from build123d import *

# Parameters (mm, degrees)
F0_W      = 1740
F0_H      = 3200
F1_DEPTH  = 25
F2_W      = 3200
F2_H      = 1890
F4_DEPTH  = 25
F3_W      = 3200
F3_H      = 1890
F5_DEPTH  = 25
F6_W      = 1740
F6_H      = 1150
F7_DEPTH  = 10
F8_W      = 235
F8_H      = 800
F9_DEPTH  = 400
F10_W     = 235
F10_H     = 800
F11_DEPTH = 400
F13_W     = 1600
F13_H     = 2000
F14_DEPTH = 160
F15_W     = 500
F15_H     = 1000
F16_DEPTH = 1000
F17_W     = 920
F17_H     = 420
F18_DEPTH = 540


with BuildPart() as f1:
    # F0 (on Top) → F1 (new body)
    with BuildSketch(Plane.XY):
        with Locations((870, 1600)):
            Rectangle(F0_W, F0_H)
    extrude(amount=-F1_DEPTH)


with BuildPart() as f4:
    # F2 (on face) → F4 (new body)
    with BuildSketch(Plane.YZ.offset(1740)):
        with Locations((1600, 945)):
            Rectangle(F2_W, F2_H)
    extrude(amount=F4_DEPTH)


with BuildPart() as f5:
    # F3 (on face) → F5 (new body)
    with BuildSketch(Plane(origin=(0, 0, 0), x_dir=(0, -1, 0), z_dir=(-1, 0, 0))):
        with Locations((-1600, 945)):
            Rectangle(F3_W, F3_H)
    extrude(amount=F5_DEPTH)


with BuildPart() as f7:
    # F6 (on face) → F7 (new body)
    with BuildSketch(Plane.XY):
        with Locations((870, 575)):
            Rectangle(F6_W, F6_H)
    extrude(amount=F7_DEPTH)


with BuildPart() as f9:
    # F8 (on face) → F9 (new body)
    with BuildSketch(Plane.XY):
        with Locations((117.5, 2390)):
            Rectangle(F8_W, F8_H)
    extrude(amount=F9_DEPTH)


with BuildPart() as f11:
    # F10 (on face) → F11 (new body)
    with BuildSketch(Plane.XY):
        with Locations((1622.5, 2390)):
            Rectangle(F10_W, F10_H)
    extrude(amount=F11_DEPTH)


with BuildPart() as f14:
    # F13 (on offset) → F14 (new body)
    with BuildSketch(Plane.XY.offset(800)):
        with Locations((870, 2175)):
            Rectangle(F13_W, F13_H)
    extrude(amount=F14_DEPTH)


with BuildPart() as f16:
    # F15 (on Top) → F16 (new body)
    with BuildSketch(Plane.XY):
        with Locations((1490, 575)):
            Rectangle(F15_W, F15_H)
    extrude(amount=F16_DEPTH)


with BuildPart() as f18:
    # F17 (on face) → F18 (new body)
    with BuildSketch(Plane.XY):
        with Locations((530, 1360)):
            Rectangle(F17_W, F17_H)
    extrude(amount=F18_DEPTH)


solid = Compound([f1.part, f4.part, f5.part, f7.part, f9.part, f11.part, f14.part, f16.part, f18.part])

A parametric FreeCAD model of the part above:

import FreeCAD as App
import Part
import Sketcher
Q = App.Units.Quantity

doc = App.newDocument("Part")
body = doc.addObject("PartDesign::Body", "Body")

# Sketch on XY plane
sketch1 = doc.addObject("Sketcher::SketchObject", "Sketch")
body.addObject(sketch1)
sketch1.AttachmentSupport = (doc.XY_Plane, [""])
sketch1.MapMode = "FlatFace"
sketch1.addGeometry(Part.LineSegment(App.Vector(0, 3200, 0), App.Vector(0, 0, 0)), False)
sketch1.addGeometry(Part.LineSegment(App.Vector(0, 0, 0), App.Vector(1740, 0, 0)), False)
sketch1.addGeometry(Part.LineSegment(App.Vector(1740, 0, 0), App.Vector(1740, 3200, 0)), False)
sketch1.addGeometry(Part.LineSegment(App.Vector(1740, 3200, 0), App.Vector(0, 3200, 0)), False)
sketch1.addConstraint(Sketcher.Constraint("Coincident", 0, 2, 1, 1))
sketch1.addConstraint(Sketcher.Constraint("Coincident", 1, 2, 2, 1))
sketch1.addConstraint(Sketcher.Constraint("Coincident", 2, 2, 3, 1))
sketch1.addConstraint(Sketcher.Constraint("Coincident", 3, 2, 0, 1))
sketch1.addConstraint(Sketcher.Constraint("Vertical", 0))
sketch1.addConstraint(Sketcher.Constraint("Horizontal", 1))
sketch1.addConstraint(Sketcher.Constraint("Vertical", 2))
sketch1.addConstraint(Sketcher.Constraint("Horizontal", 3))
sketch1.addConstraint(Sketcher.Constraint("Coincident", 0, 2, -1, 1))
sketch1.addConstraint(Sketcher.Constraint("DistanceX", 1, 1, 1, 2, Q("1740 mm")))
sketch1.addConstraint(Sketcher.Constraint("DistanceY", 0, 2, 0, 1, Q("3200 mm")))
pad1 = doc.addObject("PartDesign::Pad", "Pad")
body.addObject(pad1)
pad1.Profile = sketch1
pad1.Length = 25
pad1.Reversed = True
body2 = doc.addObject("PartDesign::Body", "Body001")

# Sketch on YZ plane
sketch2 = doc.addObject("Sketcher::SketchObject", "Sketch001")
body2.addObject(sketch2)
sketch2.AttachmentSupport = (doc.getObject("YZ_Plane001"), [""])
sketch2.MapMode = "FlatFace"
sketch2.AttachmentOffset = App.Placement(App.Vector(0, 0, 1740), App.Rotation())
sketch2.addGeometry(Part.LineSegment(App.Vector(0, 1890, 0), App.Vector(0, 0, 0)), False)
sketch2.addGeometry(Part.LineSegment(App.Vector(0, 0, 0), App.Vector(3200, 0, 0)), False)
sketch2.addGeometry(Part.LineSegment(App.Vector(3200, 0, 0), App.Vector(3200, 1890, 0)), False)
sketch2.addGeometry(Part.LineSegment(App.Vector(3200, 1890, 0), App.Vector(0, 1890, 0)), False)
sketch2.addConstraint(Sketcher.Constraint("Coincident", 0, 2, 1, 1))
sketch2.addConstraint(Sketcher.Constraint("Coincident", 1, 2, 2, 1))
sketch2.addConstraint(Sketcher.Constraint("Coincident", 2, 2, 3, 1))
sketch2.addConstraint(Sketcher.Constraint("Coincident", 3, 2, 0, 1))
sketch2.addConstraint(Sketcher.Constraint("Vertical", 0))
sketch2.addConstraint(Sketcher.Constraint("Horizontal", 1))
sketch2.addConstraint(Sketcher.Constraint("Vertical", 2))
sketch2.addConstraint(Sketcher.Constraint("Horizontal", 3))
sketch2.addConstraint(Sketcher.Constraint("Coincident", 0, 2, -1, 1))
sketch2.addConstraint(Sketcher.Constraint("DistanceX", 1, 1, 1, 2, Q("3200 mm")))
sketch2.addConstraint(Sketcher.Constraint("DistanceY", 0, 2, 0, 1, Q("1890 mm")))
pad2 = doc.addObject("PartDesign::Pad", "Pad001")
body2.addObject(pad2)
pad2.Profile = sketch2
pad2.Length = 25
body3 = doc.addObject("PartDesign::Body", "Body002")

# Sketch on YZ plane
sketch3 = doc.addObject("Sketcher::SketchObject", "Sketch002")
body3.addObject(sketch3)
sketch3.AttachmentSupport = (doc.getObject("YZ_Plane002"), [""])
sketch3.MapMode = "FlatFace"
sketch3.addGeometry(Part.LineSegment(App.Vector(3200, 1890, 0), App.Vector(3200, 0, 0)), False)
sketch3.addGeometry(Part.LineSegment(App.Vector(3200, 0, 0), App.Vector(0, 0, 0)), False)
sketch3.addGeometry(Part.LineSegment(App.Vector(0, 0, 0), App.Vector(0, 1890, 0)), False)
sketch3.addGeometry(Part.LineSegment(App.Vector(0, 1890, 0), App.Vector(3200, 1890, 0)), False)
sketch3.addConstraint(Sketcher.Constraint("Coincident", 0, 2, 1, 1))
sketch3.addConstraint(Sketcher.Constraint("Coincident", 1, 2, 2, 1))
sketch3.addConstraint(Sketcher.Constraint("Coincident", 2, 2, 3, 1))
sketch3.addConstraint(Sketcher.Constraint("Coincident", 3, 2, 0, 1))
sketch3.addConstraint(Sketcher.Constraint("Vertical", 0))
sketch3.addConstraint(Sketcher.Constraint("Horizontal", 1))
sketch3.addConstraint(Sketcher.Constraint("Vertical", 2))
sketch3.addConstraint(Sketcher.Constraint("Horizontal", 3))
sketch3.addConstraint(Sketcher.Constraint("Coincident", 1, 2, -1, 1))
sketch3.addConstraint(Sketcher.Constraint("DistanceX", 1, 2, 1, 1, Q("3200 mm")))
sketch3.addConstraint(Sketcher.Constraint("DistanceY", 0, 2, 0, 1, Q("1890 mm")))
pad3 = doc.addObject("PartDesign::Pad", "Pad002")
body3.addObject(pad3)
pad3.Profile = sketch3
pad3.Length = 25
pad3.Reversed = True
body4 = doc.addObject("PartDesign::Body", "Body003")

# Sketch on XY plane
sketch4 = doc.addObject("Sketcher::SketchObject", "Sketch003")
body4.addObject(sketch4)
sketch4.AttachmentSupport = (doc.getObject("XY_Plane003"), [""])
sketch4.MapMode = "FlatFace"
sketch4.addGeometry(Part.LineSegment(App.Vector(0, 1150, 0), App.Vector(0, 0, 0)), False)
sketch4.addGeometry(Part.LineSegment(App.Vector(0, 0, 0), App.Vector(1740, 0, 0)), False)
sketch4.addGeometry(Part.LineSegment(App.Vector(1740, 0, 0), App.Vector(1740, 1150, 0)), False)
sketch4.addGeometry(Part.LineSegment(App.Vector(1740, 1150, 0), App.Vector(0, 1150, 0)), False)
sketch4.addConstraint(Sketcher.Constraint("Coincident", 0, 2, 1, 1))
sketch4.addConstraint(Sketcher.Constraint("Coincident", 1, 2, 2, 1))
sketch4.addConstraint(Sketcher.Constraint("Coincident", 2, 2, 3, 1))
sketch4.addConstraint(Sketcher.Constraint("Coincident", 3, 2, 0, 1))
sketch4.addConstraint(Sketcher.Constraint("Vertical", 0))
sketch4.addConstraint(Sketcher.Constraint("Horizontal", 1))
sketch4.addConstraint(Sketcher.Constraint("Vertical", 2))
sketch4.addConstraint(Sketcher.Constraint("Horizontal", 3))
sketch4.addConstraint(Sketcher.Constraint("Coincident", 0, 2, -1, 1))
sketch4.addConstraint(Sketcher.Constraint("DistanceX", 1, 1, 1, 2, Q("1740 mm")))
sketch4.addConstraint(Sketcher.Constraint("DistanceY", 0, 2, 0, 1, Q("1150 mm")))
pad4 = doc.addObject("PartDesign::Pad", "Pad003")
body4.addObject(pad4)
pad4.Profile = sketch4
pad4.Length = 10
body5 = doc.addObject("PartDesign::Body", "Body004")

# Sketch on XY plane
sketch5 = doc.addObject("Sketcher::SketchObject", "Sketch004")
body5.addObject(sketch5)
sketch5.AttachmentSupport = (doc.getObject("XY_Plane004"), [""])
sketch5.MapMode = "FlatFace"
sketch5.addGeometry(Part.LineSegment(App.Vector(0, 2790, 0), App.Vector(0, 1990, 0)), False)
sketch5.addGeometry(Part.LineSegment(App.Vector(0, 1990, 0), App.Vector(235, 1990, 0)), False)
sketch5.addGeometry(Part.LineSegment(App.Vector(235, 1990, 0), App.Vector(235, 2790, 0)), False)
sketch5.addGeometry(Part.LineSegment(App.Vector(235, 2790, 0), App.Vector(0, 2790, 0)), False)
sketch5.addConstraint(Sketcher.Constraint("Coincident", 0, 2, 1, 1))
sketch5.addConstraint(Sketcher.Constraint("Coincident", 1, 2, 2, 1))
sketch5.addConstraint(Sketcher.Constraint("Coincident", 2, 2, 3, 1))
sketch5.addConstraint(Sketcher.Constraint("Coincident", 3, 2, 0, 1))
sketch5.addConstraint(Sketcher.Constraint("Vertical", 0))
sketch5.addConstraint(Sketcher.Constraint("Horizontal", 1))
sketch5.addConstraint(Sketcher.Constraint("Vertical", 2))
sketch5.addConstraint(Sketcher.Constraint("Horizontal", 3))
sketch5.addConstraint(Sketcher.Constraint("PointOnObject", 0, 2, -2))
sketch5.addConstraint(Sketcher.Constraint("DistanceX", 1, 1, 1, 2, Q("235 mm")))
sketch5.addConstraint(Sketcher.Constraint("DistanceY", 0, 2, 0, 1, Q("800 mm")))
sketch5.addConstraint(Sketcher.Constraint("DistanceY", -1, 1, 0, 2, Q("1990 mm")))
pad5 = doc.addObject("PartDesign::Pad", "Pad004")
body5.addObject(pad5)
pad5.Profile = sketch5
pad5.Length = 400
body6 = doc.addObject("PartDesign::Body", "Body005")

# Sketch on XY plane
sketch6 = doc.addObject("Sketcher::SketchObject", "Sketch005")
body6.addObject(sketch6)
sketch6.AttachmentSupport = (doc.getObject("XY_Plane005"), [""])
sketch6.MapMode = "FlatFace"
sketch6.addGeometry(Part.LineSegment(App.Vector(1505, 2790, 0), App.Vector(1505, 1990, 0)), False)
sketch6.addGeometry(Part.LineSegment(App.Vector(1505, 1990, 0), App.Vector(1740, 1990, 0)), False)
sketch6.addGeometry(Part.LineSegment(App.Vector(1740, 1990, 0), App.Vector(1740, 2790, 0)), False)
sketch6.addGeometry(Part.LineSegment(App.Vector(1740, 2790, 0), App.Vector(1505, 2790, 0)), False)
sketch6.addConstraint(Sketcher.Constraint("Coincident", 0, 2, 1, 1))
sketch6.addConstraint(Sketcher.Constraint("Coincident", 1, 2, 2, 1))
sketch6.addConstraint(Sketcher.Constraint("Coincident", 2, 2, 3, 1))
sketch6.addConstraint(Sketcher.Constraint("Coincident", 3, 2, 0, 1))
sketch6.addConstraint(Sketcher.Constraint("Vertical", 0))
sketch6.addConstraint(Sketcher.Constraint("Horizontal", 1))
sketch6.addConstraint(Sketcher.Constraint("Vertical", 2))
sketch6.addConstraint(Sketcher.Constraint("Horizontal", 3))
sketch6.addConstraint(Sketcher.Constraint("DistanceX", 1, 1, 1, 2, Q("235 mm")))
sketch6.addConstraint(Sketcher.Constraint("DistanceY", 0, 2, 0, 1, Q("800 mm")))
sketch6.addConstraint(Sketcher.Constraint("DistanceX", -1, 1, 0, 2, Q("1505 mm")))
sketch6.addConstraint(Sketcher.Constraint("DistanceY", -1, 1, 0, 2, Q("1990 mm")))
pad6 = doc.addObject("PartDesign::Pad", "Pad005")
body6.addObject(pad6)
pad6.Profile = sketch6
pad6.Length = 400
body7 = doc.addObject("PartDesign::Body", "Body006")

# Sketch on XY plane
sketch7 = doc.addObject("Sketcher::SketchObject", "Sketch006")
body7.addObject(sketch7)
sketch7.AttachmentSupport = (doc.getObject("XY_Plane006"), [""])
sketch7.MapMode = "FlatFace"
sketch7.AttachmentOffset = App.Placement(App.Vector(0, 0, 800), App.Rotation())
sketch7.addGeometry(Part.LineSegment(App.Vector(70, 3175, 0), App.Vector(70, 1175, 0)), False)
sketch7.addGeometry(Part.LineSegment(App.Vector(70, 1175, 0), App.Vector(1670, 1175, 0)), False)
sketch7.addGeometry(Part.LineSegment(App.Vector(1670, 1175, 0), App.Vector(1670, 3175, 0)), False)
sketch7.addGeometry(Part.LineSegment(App.Vector(1670, 3175, 0), App.Vector(70, 3175, 0)), False)
sketch7.addConstraint(Sketcher.Constraint("Coincident", 0, 2, 1, 1))
sketch7.addConstraint(Sketcher.Constraint("Coincident", 1, 2, 2, 1))
sketch7.addConstraint(Sketcher.Constraint("Coincident", 2, 2, 3, 1))
sketch7.addConstraint(Sketcher.Constraint("Coincident", 3, 2, 0, 1))
sketch7.addConstraint(Sketcher.Constraint("Vertical", 0))
sketch7.addConstraint(Sketcher.Constraint("Horizontal", 1))
sketch7.addConstraint(Sketcher.Constraint("Vertical", 2))
sketch7.addConstraint(Sketcher.Constraint("Horizontal", 3))
sketch7.addConstraint(Sketcher.Constraint("DistanceX", 1, 1, 1, 2, Q("1600 mm")))
sketch7.addConstraint(Sketcher.Constraint("DistanceY", 0, 2, 0, 1, Q("2000 mm")))
sketch7.addConstraint(Sketcher.Constraint("DistanceX", -1, 1, 0, 2, Q("70 mm")))
sketch7.addConstraint(Sketcher.Constraint("DistanceY", -1, 1, 0, 2, Q("1175 mm")))
pad7 = doc.addObject("PartDesign::Pad", "Pad006")
body7.addObject(pad7)
pad7.Profile = sketch7
pad7.Length = 160
body8 = doc.addObject("PartDesign::Body", "Body007")

# Sketch on XY plane
sketch8 = doc.addObject("Sketcher::SketchObject", "Sketch007")
body8.addObject(sketch8)
sketch8.AttachmentSupport = (doc.getObject("XY_Plane007"), [""])
sketch8.MapMode = "FlatFace"
sketch8.addGeometry(Part.LineSegment(App.Vector(1240, 1075, 0), App.Vector(1240, 75, 0)), False)
sketch8.addGeometry(Part.LineSegment(App.Vector(1240, 75, 0), App.Vector(1740, 75, 0)), False)
sketch8.addGeometry(Part.LineSegment(App.Vector(1740, 75, 0), App.Vector(1740, 1075, 0)), False)
sketch8.addGeometry(Part.LineSegment(App.Vector(1740, 1075, 0), App.Vector(1240, 1075, 0)), False)
sketch8.addConstraint(Sketcher.Constraint("Coincident", 0, 2, 1, 1))
sketch8.addConstraint(Sketcher.Constraint("Coincident", 1, 2, 2, 1))
sketch8.addConstraint(Sketcher.Constraint("Coincident", 2, 2, 3, 1))
sketch8.addConstraint(Sketcher.Constraint("Coincident", 3, 2, 0, 1))
sketch8.addConstraint(Sketcher.Constraint("Vertical", 0))
sketch8.addConstraint(Sketcher.Constraint("Horizontal", 1))
sketch8.addConstraint(Sketcher.Constraint("Vertical", 2))
sketch8.addConstraint(Sketcher.Constraint("Horizontal", 3))
sketch8.addConstraint(Sketcher.Constraint("DistanceX", 1, 1, 1, 2, Q("500 mm")))
sketch8.addConstraint(Sketcher.Constraint("DistanceY", 0, 2, 0, 1, Q("1000 mm")))
sketch8.addConstraint(Sketcher.Constraint("DistanceX", -1, 1, 0, 2, Q("1240 mm")))
sketch8.addConstraint(Sketcher.Constraint("DistanceY", -1, 1, 0, 2, Q("75 mm")))
pad8 = doc.addObject("PartDesign::Pad", "Pad007")
body8.addObject(pad8)
pad8.Profile = sketch8
pad8.Length = 1000
body9 = doc.addObject("PartDesign::Body", "Body008")

# Sketch on XY plane
sketch9 = doc.addObject("Sketcher::SketchObject", "Sketch008")
body9.addObject(sketch9)
sketch9.AttachmentSupport = (doc.getObject("XY_Plane008"), [""])
sketch9.MapMode = "FlatFace"
sketch9.addGeometry(Part.LineSegment(App.Vector(70, 1570, 0), App.Vector(70, 1150, 0)), False)
sketch9.addGeometry(Part.LineSegment(App.Vector(70, 1150, 0), App.Vector(990, 1150, 0)), False)
sketch9.addGeometry(Part.LineSegment(App.Vector(990, 1150, 0), App.Vector(990, 1570, 0)), False)
sketch9.addGeometry(Part.LineSegment(App.Vector(990, 1570, 0), App.Vector(70, 1570, 0)), False)
sketch9.addConstraint(Sketcher.Constraint("Coincident", 0, 2, 1, 1))
sketch9.addConstraint(Sketcher.Constraint("Coincident", 1, 2, 2, 1))
sketch9.addConstraint(Sketcher.Constraint("Coincident", 2, 2, 3, 1))
sketch9.addConstraint(Sketcher.Constraint("Coincident", 3, 2, 0, 1))
sketch9.addConstraint(Sketcher.Constraint("Vertical", 0))
sketch9.addConstraint(Sketcher.Constraint("Horizontal", 1))
sketch9.addConstraint(Sketcher.Constraint("Vertical", 2))
sketch9.addConstraint(Sketcher.Constraint("Horizontal", 3))
sketch9.addConstraint(Sketcher.Constraint("DistanceX", 1, 1, 1, 2, Q("920 mm")))
sketch9.addConstraint(Sketcher.Constraint("DistanceY", 0, 2, 0, 1, Q("420 mm")))
sketch9.addConstraint(Sketcher.Constraint("DistanceX", -1, 1, 0, 2, Q("70 mm")))
sketch9.addConstraint(Sketcher.Constraint("DistanceY", -1, 1, 0, 2, Q("1150 mm")))
pad9 = doc.addObject("PartDesign::Pad", "Pad008")
body9.addObject(pad9)
pad9.Profile = sketch9
pad9.Length = 540

doc.recompute()
